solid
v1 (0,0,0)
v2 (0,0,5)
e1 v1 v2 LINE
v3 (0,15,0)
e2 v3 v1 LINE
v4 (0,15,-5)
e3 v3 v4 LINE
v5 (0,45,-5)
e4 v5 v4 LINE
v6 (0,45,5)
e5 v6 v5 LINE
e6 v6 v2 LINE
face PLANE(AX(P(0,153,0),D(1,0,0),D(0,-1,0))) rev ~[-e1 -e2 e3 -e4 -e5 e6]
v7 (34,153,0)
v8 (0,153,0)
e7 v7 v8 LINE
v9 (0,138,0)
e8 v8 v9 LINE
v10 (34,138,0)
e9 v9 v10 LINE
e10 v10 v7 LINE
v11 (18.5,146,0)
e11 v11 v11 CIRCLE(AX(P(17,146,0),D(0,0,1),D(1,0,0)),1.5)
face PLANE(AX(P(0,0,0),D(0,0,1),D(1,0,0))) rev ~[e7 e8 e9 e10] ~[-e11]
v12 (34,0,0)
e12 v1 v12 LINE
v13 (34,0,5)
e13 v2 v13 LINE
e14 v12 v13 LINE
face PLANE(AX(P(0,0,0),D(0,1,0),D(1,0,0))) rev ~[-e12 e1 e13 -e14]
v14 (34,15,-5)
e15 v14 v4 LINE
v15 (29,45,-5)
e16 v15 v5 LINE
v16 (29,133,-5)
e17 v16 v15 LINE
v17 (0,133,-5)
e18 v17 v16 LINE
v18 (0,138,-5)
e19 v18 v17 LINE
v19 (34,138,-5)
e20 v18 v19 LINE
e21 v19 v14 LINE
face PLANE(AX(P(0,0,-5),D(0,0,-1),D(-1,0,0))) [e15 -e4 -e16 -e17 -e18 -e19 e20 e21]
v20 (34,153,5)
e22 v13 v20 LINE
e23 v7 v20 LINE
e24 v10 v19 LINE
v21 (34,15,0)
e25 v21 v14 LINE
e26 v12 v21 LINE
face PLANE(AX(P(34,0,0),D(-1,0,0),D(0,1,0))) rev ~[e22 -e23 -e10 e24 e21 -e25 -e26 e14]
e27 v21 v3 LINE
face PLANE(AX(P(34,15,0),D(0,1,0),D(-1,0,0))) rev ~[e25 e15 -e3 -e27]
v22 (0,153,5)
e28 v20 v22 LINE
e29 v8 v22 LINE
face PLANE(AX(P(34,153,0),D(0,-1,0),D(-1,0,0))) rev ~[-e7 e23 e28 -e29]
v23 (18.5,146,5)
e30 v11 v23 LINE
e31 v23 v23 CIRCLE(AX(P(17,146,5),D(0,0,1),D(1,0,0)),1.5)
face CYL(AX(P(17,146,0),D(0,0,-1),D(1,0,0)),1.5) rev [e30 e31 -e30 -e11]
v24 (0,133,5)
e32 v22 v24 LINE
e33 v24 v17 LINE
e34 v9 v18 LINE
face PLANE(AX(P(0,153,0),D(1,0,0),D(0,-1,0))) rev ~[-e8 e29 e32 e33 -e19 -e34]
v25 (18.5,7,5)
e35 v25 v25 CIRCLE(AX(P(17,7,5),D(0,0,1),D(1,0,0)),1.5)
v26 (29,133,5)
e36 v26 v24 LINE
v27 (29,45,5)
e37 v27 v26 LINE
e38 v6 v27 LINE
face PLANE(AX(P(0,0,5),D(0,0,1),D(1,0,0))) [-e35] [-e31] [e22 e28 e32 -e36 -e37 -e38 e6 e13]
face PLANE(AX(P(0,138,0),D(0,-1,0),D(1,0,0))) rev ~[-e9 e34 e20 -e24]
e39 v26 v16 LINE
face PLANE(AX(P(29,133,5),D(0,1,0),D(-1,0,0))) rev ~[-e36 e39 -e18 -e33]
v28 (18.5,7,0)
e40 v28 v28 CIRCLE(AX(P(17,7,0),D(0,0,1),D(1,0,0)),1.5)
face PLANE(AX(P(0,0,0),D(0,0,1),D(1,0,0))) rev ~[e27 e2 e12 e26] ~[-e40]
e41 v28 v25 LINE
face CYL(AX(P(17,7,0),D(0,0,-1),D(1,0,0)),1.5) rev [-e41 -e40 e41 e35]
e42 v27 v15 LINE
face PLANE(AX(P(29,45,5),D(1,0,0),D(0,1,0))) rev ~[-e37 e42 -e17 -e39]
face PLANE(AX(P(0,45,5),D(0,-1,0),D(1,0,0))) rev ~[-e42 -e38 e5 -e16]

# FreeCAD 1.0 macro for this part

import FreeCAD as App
import Part
import Sketcher

V = App.Vector
Q = App.Units.Quantity

doc = App.newDocument("Part")
body = doc.addObject("PartDesign::Body", "Body")

# Sketch on XY plane
sketch1 = body.newObject("Sketcher::SketchObject", "Sketch")
sketch1.AttachmentSupport = (doc.getObject("XY_Plane"), [""])
sketch1.MapMode = "FlatFace"
sketch1.addGeometry(Part.LineSegment(V(0, 153, 0), V(0, 0, 0)), False)
sketch1.addGeometry(Part.LineSegment(V(0, 0, 0), V(34, 0, 0)), False)
sketch1.addGeometry(Part.LineSegment(V(34, 0, 0), V(34, 153, 0)), False)
sketch1.addGeometry(Part.LineSegment(V(34, 153, 0), V(0, 153, 0)), False)
sketch1.addGeometry(Part.Circle(V(17, 7, 0), V(0, 0, 1), 1.5), False)
sketch1.addGeometry(Part.Circle(V(17, 146, 0), V(0, 0, 1), 1.5), False)
sketch1.addConstraint(Sketcher.Constraint("Coincident", 0, 2, 1, 1))
sketch1.addConstraint(Sketcher.Constraint("Coincident", 1, 2, 2, 1))
sketch1.addConstraint(Sketcher.Constraint("Coincident", 2, 2, 3, 1))
sketch1.addConstraint(Sketcher.Constraint("Coincident", 3, 2, 0, 1))
sketch1.addConstraint(Sketcher.Constraint("Vertical", 0))
sketch1.addConstraint(Sketcher.Constraint("Horizontal", 1))
sketch1.addConstraint(Sketcher.Constraint("Vertical", 2))
sketch1.addConstraint(Sketcher.Constraint("Horizontal", 3))
sketch1.addConstraint(Sketcher.Constraint("Coincident", 0, 2, -1, 1))
sketch1.addConstraint(Sketcher.Constraint("Equal", 4, 5))
sketch1.addConstraint(Sketcher.Constraint("Vertical", 4, 3, 5, 3))
sketch1.addConstraint(Sketcher.Constraint("Diameter", 4, Q("3 mm")))
sketch1.addConstraint(Sketcher.Constraint("DistanceX", 1, 1, 1, 2, Q("34 mm")))
sketch1.addConstraint(Sketcher.Constraint("DistanceY", 0, 2, 0, 1, Q("153 mm")))
sketch1.addConstraint(Sketcher.Constraint("DistanceY", -1, 1, 4, 3, Q("7 mm")))
sketch1.addConstraint(Sketcher.Constraint("DistanceY", 5, 3, 2, 2, Q("7 mm")))
sketch1.addConstraint(Sketcher.Constraint("DistanceX", -1, 1, 4, 3, Q("17 mm")))
pad1 = body.newObject("PartDesign::Pad", "Pad")
pad1.Profile = sketch1
pad1.Length = 5

# Sketch on XY plane
sketch2 = body.newObject("Sketcher::SketchObject", "Sketch001")
sketch2.AttachmentSupport = (doc.getObject("XY_Plane"), [""])
sketch2.MapMode = "FlatFace"
sketch2.addGeometry(Part.LineSegment(V(0, 15, 0), V(0, 138, 0)), False)
sketch2.addGeometry(Part.LineSegment(V(0, 138, 0), V(34, 138, 0)), False)
sketch2.addGeometry(Part.LineSegment(V(34, 138, 0), V(34, 15, 0)), False)
sketch2.addGeometry(Part.LineSegment(V(34, 15, 0), V(0, 15, 0)), False)
sketch2.addConstraint(Sketcher.Constraint("Coincident", 0, 2, 1, 1))
sketch2.addConstraint(Sketcher.Constraint("Coincident", 1, 2, 2, 1))
sketch2.addConstraint(Sketcher.Constraint("Coincident", 2, 2, 3, 1))
sketch2.addConstraint(Sketcher.Constraint("Coincident", 3, 2, 0, 1))
sketch2.addConstraint(Sketcher.Constraint("Vertical", 0))
sketch2.addConstraint(Sketcher.Constraint("Horizontal", 1))
sketch2.addConstraint(Sketcher.Constraint("Vertical", 2))
sketch2.addConstraint(Sketcher.Constraint("Horizontal", 3))
sketch2.addConstraint(Sketcher.Constraint("PointOnObject", 0, 2, -2))
sketch2.addConstraint(Sketcher.Constraint("DistanceY", 0, 1, 0, 2, Q("123 mm")))
sketch2.addConstraint(Sketcher.Constraint("DistanceX", 1, 1, 1, 2, Q("34 mm")))
sketch2.addConstraint(Sketcher.Constraint("DistanceY", -1, 1, 0, 2, Q("138 mm")))
pad2 = body.newObject("PartDesign::Pad", "Pad001")
pad2.Profile = sketch2
pad2.Length = 5
pad2.Reversed = True

# Sketch on XY plane
sketch3 = body.newObject("Sketcher::SketchObject", "Sketch002")
sketch3.AttachmentSupport = (doc.getObject("XY_Plane"), [""])
sketch3.MapMode = "FlatFace"
sketch3.AttachmentOffset = App.Placement(V(0, 0, 5), App.Rotation())
sketch3.addGeometry(Part.LineSegment(V(29, 45, 0), V(29, 133, 0)), False)
sketch3.addGeometry(Part.LineSegment(V(29, 133, 0), V(0, 133, 0)), False)
sketch3.addGeometry(Part.LineSegment(V(0, 133, 0), V(0, 45, 0)), False)
sketch3.addGeometry(Part.LineSegment(V(0, 45, 0), V(29, 45, 0)), False)
sketch3.addConstraint(Sketcher.Constraint("Coincident", 0, 2, 1, 1))
sketch3.addConstraint(Sketcher.Constraint("Coincident", 1, 2, 2, 1))
sketch3.addConstraint(Sketcher.Constraint("Coincident", 2, 2, 3, 1))
sketch3.addConstraint(Sketcher.Constraint("Coincident", 3, 2, 0, 1))
sketch3.addConstraint(Sketcher.Constraint("Vertical", 0))
sketch3.addConstraint(Sketcher.Constraint("Horizontal", 1))
sketch3.addConstraint(Sketcher.Constraint("Vertical", 2))
sketch3.addConstraint(Sketcher.Constraint("Horizontal", 3))
sketch3.addConstraint(Sketcher.Constraint("PointOnObject", 1, 2, -2))
sketch3.addConstraint(Sketcher.Constraint("DistanceX", 1, 2, 1, 1, Q("29 mm")))
sketch3.addConstraint(Sketcher.Constraint("DistanceY", 0, 1, 0, 2, Q("88 mm")))
sketch3.addConstraint(Sketcher.Constraint("DistanceY", -1, 1, 0, 2, Q("133 mm")))
pocket1 = body.newObject("PartDesign::Pocket", "Pocket")
pocket1.Profile = sketch3
pocket1.Type = "ThroughAll"

doc.recompute()
